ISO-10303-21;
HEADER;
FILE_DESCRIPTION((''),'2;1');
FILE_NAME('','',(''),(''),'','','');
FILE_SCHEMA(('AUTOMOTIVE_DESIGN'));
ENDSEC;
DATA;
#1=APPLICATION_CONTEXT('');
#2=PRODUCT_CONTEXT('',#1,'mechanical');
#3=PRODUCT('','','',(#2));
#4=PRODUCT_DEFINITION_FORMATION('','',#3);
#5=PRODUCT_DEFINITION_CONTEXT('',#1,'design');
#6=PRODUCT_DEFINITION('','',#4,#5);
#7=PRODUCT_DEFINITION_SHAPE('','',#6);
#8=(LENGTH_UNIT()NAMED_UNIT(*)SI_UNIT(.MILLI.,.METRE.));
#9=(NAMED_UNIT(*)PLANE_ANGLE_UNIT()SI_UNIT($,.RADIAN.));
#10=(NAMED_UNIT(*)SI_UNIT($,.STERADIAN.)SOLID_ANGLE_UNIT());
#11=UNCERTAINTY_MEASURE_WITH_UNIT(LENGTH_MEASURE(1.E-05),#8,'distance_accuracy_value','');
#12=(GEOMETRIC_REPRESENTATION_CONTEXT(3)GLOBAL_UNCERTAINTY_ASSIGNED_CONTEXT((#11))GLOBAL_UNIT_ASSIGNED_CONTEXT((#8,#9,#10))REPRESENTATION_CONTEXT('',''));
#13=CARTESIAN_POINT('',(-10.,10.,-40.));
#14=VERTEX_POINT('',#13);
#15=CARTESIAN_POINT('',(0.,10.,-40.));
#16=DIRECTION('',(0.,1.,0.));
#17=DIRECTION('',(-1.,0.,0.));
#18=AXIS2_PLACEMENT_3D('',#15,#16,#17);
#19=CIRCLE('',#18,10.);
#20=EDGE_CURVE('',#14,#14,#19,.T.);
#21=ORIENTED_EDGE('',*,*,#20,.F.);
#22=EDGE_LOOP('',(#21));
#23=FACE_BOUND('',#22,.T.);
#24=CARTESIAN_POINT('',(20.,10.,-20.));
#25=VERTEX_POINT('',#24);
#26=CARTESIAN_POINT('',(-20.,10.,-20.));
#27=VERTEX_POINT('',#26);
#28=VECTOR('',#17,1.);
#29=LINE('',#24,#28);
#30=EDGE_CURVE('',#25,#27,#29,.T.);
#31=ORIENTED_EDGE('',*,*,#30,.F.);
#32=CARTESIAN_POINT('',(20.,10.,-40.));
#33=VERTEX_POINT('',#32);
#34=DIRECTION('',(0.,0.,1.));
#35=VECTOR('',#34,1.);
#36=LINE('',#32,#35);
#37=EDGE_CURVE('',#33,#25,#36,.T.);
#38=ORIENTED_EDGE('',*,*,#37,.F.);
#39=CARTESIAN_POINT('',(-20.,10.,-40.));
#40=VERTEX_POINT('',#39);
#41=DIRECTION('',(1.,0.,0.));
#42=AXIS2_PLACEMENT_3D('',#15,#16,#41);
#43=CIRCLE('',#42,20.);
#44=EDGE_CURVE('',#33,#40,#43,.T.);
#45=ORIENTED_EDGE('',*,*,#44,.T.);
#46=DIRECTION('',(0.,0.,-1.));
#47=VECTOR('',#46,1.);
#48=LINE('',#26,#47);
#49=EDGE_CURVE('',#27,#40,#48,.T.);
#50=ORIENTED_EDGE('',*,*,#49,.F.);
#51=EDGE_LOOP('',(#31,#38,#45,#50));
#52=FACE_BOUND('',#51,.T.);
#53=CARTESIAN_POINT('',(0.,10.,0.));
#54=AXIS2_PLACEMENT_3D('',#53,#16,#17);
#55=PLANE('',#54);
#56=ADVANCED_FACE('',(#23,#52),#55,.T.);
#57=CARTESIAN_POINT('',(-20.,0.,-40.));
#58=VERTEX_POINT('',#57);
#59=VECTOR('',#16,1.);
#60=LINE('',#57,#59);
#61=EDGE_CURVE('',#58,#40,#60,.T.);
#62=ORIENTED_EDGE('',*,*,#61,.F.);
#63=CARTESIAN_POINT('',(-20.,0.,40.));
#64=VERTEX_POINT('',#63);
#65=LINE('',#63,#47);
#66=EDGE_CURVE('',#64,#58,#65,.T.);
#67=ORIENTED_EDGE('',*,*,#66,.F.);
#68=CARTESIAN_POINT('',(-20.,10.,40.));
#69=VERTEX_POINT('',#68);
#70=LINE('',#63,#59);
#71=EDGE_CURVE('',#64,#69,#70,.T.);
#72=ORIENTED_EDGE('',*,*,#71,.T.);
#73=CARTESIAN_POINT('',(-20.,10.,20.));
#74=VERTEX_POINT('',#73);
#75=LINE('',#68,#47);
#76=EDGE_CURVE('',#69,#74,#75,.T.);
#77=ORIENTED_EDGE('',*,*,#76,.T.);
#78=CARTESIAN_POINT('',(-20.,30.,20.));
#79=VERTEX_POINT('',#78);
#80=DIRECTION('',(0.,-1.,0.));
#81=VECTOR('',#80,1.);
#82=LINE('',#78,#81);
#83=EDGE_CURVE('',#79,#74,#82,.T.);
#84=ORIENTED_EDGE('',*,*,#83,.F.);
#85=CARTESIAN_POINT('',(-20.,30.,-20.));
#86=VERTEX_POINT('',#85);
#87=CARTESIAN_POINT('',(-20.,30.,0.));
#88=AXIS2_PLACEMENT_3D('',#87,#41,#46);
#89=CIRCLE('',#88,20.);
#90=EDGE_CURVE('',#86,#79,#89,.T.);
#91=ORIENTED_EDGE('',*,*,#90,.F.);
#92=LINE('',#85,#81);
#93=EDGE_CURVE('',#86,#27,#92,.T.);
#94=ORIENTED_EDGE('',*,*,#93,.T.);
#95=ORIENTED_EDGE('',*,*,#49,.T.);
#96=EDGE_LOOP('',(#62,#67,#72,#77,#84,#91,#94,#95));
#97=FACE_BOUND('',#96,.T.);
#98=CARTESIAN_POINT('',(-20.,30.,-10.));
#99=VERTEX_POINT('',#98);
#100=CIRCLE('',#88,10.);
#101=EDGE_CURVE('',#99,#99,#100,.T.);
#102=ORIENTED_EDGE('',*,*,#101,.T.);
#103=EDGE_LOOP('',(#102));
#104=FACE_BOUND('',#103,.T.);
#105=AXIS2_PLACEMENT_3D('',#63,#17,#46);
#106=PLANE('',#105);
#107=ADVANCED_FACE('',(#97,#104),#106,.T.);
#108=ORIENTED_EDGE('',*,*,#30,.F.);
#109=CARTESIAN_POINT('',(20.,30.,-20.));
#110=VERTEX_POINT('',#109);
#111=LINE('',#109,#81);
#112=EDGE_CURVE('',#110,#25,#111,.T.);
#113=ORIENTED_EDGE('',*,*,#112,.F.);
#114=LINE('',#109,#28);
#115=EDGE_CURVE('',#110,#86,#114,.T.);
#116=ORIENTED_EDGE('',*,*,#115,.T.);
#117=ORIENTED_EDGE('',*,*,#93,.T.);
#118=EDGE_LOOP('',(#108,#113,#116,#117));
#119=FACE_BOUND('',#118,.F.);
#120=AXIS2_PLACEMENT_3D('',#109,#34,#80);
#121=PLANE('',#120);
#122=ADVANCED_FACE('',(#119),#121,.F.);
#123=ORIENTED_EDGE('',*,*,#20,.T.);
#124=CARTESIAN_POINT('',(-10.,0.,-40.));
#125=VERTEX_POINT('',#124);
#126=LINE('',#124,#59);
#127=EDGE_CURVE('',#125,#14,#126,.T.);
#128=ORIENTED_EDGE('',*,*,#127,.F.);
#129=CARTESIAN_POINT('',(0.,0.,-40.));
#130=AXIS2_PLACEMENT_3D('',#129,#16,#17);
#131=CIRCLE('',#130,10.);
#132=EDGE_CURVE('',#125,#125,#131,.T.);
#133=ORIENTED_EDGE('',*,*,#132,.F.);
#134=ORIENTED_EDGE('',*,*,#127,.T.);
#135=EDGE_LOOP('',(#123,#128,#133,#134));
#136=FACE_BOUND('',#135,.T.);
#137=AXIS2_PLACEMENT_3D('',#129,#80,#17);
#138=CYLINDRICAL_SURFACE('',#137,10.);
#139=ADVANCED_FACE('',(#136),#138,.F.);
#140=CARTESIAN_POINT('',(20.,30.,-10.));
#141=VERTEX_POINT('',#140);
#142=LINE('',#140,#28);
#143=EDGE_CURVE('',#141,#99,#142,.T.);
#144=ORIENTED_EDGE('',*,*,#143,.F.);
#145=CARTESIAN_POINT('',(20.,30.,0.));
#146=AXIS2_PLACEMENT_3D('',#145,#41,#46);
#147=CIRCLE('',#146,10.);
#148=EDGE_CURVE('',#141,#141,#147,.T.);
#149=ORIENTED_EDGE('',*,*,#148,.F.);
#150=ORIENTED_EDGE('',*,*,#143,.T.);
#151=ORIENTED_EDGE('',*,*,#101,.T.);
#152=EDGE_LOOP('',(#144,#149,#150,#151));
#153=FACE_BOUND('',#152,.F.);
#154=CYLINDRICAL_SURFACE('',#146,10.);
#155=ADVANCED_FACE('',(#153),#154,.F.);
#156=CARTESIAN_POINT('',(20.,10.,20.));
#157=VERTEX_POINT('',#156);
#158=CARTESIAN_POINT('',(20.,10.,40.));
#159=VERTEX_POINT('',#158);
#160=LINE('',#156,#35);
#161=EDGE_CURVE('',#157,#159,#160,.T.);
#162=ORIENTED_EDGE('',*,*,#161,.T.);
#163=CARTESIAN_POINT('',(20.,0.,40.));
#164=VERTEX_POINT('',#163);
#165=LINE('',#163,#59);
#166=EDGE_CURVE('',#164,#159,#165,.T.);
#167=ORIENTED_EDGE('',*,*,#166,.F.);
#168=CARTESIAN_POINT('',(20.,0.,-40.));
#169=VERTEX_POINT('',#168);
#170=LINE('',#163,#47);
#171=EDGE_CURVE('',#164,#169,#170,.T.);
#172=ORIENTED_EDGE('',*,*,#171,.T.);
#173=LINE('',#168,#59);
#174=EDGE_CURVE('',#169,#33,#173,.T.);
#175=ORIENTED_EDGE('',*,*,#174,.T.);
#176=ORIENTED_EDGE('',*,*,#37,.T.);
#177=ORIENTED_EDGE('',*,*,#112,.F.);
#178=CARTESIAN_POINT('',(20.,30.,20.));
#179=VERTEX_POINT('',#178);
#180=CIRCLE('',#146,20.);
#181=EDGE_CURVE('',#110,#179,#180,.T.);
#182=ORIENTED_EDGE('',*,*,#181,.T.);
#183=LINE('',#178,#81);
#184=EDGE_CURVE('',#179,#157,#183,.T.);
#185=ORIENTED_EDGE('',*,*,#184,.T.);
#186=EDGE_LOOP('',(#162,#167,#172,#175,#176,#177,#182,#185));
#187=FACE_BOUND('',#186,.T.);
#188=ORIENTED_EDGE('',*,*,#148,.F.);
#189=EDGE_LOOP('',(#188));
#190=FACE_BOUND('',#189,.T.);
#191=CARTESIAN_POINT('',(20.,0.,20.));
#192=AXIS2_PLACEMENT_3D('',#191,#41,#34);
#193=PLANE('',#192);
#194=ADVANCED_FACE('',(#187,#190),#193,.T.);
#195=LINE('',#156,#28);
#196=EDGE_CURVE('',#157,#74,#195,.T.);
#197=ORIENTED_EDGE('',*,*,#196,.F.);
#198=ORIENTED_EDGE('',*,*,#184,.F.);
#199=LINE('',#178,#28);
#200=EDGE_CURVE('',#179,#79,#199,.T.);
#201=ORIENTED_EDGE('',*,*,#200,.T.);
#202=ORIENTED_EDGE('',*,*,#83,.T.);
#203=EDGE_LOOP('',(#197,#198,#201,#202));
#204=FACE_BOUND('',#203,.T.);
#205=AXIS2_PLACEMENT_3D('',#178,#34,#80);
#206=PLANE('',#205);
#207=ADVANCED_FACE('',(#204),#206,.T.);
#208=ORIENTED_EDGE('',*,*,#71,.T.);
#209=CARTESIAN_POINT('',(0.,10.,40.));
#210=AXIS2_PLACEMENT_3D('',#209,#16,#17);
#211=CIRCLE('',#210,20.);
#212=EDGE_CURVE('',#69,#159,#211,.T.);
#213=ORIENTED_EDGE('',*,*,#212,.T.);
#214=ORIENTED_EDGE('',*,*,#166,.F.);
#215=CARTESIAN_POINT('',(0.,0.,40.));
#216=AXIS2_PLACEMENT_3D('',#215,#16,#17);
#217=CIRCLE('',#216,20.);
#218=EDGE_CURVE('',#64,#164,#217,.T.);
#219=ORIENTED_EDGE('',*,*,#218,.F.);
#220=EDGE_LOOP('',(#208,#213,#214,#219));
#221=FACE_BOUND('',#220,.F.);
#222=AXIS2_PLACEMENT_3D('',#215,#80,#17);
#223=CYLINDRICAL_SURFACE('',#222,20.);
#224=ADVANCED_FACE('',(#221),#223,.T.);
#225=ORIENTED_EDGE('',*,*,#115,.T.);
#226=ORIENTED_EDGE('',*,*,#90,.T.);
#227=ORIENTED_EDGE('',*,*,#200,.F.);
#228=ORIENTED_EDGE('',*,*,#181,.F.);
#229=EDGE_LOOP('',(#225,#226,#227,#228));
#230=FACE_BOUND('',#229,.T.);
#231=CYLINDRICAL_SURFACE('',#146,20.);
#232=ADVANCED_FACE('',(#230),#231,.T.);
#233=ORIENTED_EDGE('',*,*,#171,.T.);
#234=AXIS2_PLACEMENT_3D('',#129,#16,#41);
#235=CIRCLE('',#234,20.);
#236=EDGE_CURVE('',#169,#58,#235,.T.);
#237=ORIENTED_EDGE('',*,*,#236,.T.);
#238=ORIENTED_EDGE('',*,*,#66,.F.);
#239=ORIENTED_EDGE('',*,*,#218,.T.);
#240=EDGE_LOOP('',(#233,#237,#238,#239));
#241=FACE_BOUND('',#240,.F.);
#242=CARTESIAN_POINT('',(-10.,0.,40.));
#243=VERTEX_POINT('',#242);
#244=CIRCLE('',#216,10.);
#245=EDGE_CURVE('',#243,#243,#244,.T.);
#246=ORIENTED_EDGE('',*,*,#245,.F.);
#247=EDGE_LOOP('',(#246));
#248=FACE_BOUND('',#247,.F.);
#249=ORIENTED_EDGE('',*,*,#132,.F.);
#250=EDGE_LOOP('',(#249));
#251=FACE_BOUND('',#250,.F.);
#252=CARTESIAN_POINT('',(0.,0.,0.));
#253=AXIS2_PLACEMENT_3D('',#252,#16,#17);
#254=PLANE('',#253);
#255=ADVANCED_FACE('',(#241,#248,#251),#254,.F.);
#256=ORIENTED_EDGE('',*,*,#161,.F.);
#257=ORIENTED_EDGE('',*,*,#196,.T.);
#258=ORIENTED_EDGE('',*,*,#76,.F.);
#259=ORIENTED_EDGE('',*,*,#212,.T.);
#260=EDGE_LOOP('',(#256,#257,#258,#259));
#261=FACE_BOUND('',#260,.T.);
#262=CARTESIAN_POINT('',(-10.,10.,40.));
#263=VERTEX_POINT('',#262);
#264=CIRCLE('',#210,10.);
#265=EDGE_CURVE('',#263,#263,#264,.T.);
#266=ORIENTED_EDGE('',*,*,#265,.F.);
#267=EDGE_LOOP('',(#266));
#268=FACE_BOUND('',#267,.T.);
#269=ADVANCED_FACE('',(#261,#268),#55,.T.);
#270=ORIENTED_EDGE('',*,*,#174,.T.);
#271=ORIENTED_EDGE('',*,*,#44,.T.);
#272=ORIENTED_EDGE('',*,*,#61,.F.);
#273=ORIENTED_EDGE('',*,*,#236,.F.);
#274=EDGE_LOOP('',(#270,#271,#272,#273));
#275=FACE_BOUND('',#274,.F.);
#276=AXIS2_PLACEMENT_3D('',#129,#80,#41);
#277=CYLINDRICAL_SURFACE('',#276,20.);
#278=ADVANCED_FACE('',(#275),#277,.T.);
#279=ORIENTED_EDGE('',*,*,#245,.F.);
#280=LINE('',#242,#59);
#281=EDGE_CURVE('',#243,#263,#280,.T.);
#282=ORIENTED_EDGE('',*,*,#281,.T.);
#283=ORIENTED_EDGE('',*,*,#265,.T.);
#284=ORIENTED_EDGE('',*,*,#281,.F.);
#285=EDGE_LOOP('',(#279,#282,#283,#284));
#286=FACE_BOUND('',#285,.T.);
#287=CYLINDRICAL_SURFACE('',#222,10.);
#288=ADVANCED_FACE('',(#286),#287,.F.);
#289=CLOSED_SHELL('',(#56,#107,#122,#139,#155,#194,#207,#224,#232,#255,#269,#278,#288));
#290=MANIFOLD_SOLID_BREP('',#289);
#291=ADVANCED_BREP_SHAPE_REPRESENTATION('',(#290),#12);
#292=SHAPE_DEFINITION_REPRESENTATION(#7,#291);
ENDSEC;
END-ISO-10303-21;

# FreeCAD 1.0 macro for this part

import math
import FreeCAD as App
import Part
import Sketcher
from FreeCAD import Vector
Q = App.Units.Quantity

doc = App.newDocument("Part")
params = doc.addObject("Spreadsheet::Sheet", "Params")
for row, (alias, value) in enumerate([
    ("sketch1_diameter", "20 mm"),
    ("sketch1_radius", "20 mm"),
    ("sketch1_height", "80 mm"),
    ("pad1_length", "10 mm"),
    ("sketch2_diameter", "20 mm"),
    ("sketch2_radius", "20 mm"),
    ("sketch2_width", "20 mm"),
    ("pad2_length", "40 mm"),
], start=1):
    params.set(f"A{row}", alias)
    params.set(f"B{row}", "=" + value)
    params.setAlias(f"B{row}", alias)

body = doc.addObject("PartDesign::Body", "Body")

sketch1 = body.newObject("Sketcher::SketchObject", "Sketch")
sketch1.AttachmentSupport = (doc.getObject("XZ_Plane"), [""])
sketch1.MapMode = "FlatFace"
sketch1.addGeometry(Part.LineSegment(Vector(20, 40, 0), Vector(20, -40, 0)), False)
sketch1.addGeometry(Part.ArcOfCircle(Part.Circle(Vector(0, -40, 0), Vector(0, 0, 1), 20), math.radians(180), math.radians(360)), False)
sketch1.addGeometry(Part.LineSegment(Vector(-20, -40, 0), Vector(-20, 40, 0)), False)
sketch1.addGeometry(Part.ArcOfCircle(Part.Circle(Vector(0, 40, 0), Vector(0, 0, 1), 20), math.radians(0), math.radians(180)), False)
sketch1.addGeometry(Part.Circle(Vector(0, -40, 0), Vector(0, 0, 1), 10), False)
sketch1.addGeometry(Part.Circle(Vector(0, 40, 0), Vector(0, 0, 1), 10), False)
sketch1.addConstraint(Sketcher.Constraint("Tangent", 0, 2, 1, 2))
sketch1.addConstraint(Sketcher.Constraint("Tangent", 1, 1, 2, 1))
sketch1.addConstraint(Sketcher.Constraint("Tangent", 2, 2, 3, 2))
sketch1.addConstraint(Sketcher.Constraint("Tangent", 3, 1, 0, 1))
sketch1.addConstraint(Sketcher.Constraint("Vertical", 0))
sketch1.addConstraint(Sketcher.Constraint("Vertical", 2))
sketch1.addConstraint(Sketcher.Constraint("Coincident", 4, 3, 1, 3))
sketch1.addConstraint(Sketcher.Constraint("Coincident", 5, 3, 3, 3))
sketch1.addConstraint(Sketcher.Constraint("Equal", 4, 5))
sketch1.addConstraint(Sketcher.Constraint("Symmetric", 1, 3, 3, 3, -1, 1))
sketch1.addConstraint(Sketcher.Constraint("Diameter", 4, Q("20 mm")))
sketch1.addConstraint(Sketcher.Constraint("Radius", 1, Q("20 mm")))
sketch1.addConstraint(Sketcher.Constraint("DistanceY", 0, 2, 0, 1, Q("80 mm")))
sketch1.setExpression("Constraints[10]", "Params.sketch1_diameter")
sketch1.setExpression("Constraints[11]", "Params.sketch1_radius")
sketch1.setExpression("Constraints[12]", "Params.sketch1_height")
pad1 = body.newObject("PartDesign::Pad", "Pad")
pad1.Profile = sketch1
pad1.setExpression("Length", "Params.pad1_length")
pad1.Reversed = True

sketch2 = body.newObject("Sketcher::SketchObject", "Sketch001")
sketch2.AttachmentSupport = (doc.getObject("YZ_Plane"), [""])
sketch2.MapMode = "FlatFace"
sketch2.AttachmentOffset = App.Placement(Vector(0, 0, 20), App.Rotation())
sketch2.addGeometry(Part.LineSegment(Vector(10, -20, 0), Vector(30, -20, 0)), False)
sketch2.addGeometry(Part.ArcOfCircle(Part.Circle(Vector(30, 0, 0), Vector(0, 0, 1), 20), math.radians(-90), math.radians(90)), False)
sketch2.addGeometry(Part.LineSegment(Vector(30, 20, 0), Vector(10, 20, 0)), False)
sketch2.addGeometry(Part.LineSegment(Vector(10, 20, 0), Vector(10, -20, 0)), False)
sketch2.addGeometry(Part.Circle(Vector(30, 0, 0), Vector(0, 0, 1), 10), False)
sketch2.addConstraint(Sketcher.Constraint("Tangent", 0, 2, 1, 1))
sketch2.addConstraint(Sketcher.Constraint("Tangent", 1, 2, 2, 1))
sketch2.addConstraint(Sketcher.Constraint("Coincident", 2, 2, 3, 1))
sketch2.addConstraint(Sketcher.Constraint("Coincident", 3, 2, 0, 1))
sketch2.addConstraint(Sketcher.Constraint("Horizontal", 0))
sketch2.addConstraint(Sketcher.Constraint("Horizontal", 2))
sketch2.addConstraint(Sketcher.Constraint("Vertical", 3))
sketch2.addConstraint(Sketcher.Constraint("Coincident", 4, 3, 1, 3))
sketch2.addConstraint(Sketcher.Constraint("PointOnObject", 1, 3, -1))
sketch2.addConstraint(Sketcher.Constraint("Diameter", 4, Q("20 mm")))
sketch2.addConstraint(Sketcher.Constraint("Radius", 1, Q("20 mm")))
sketch2.addConstraint(Sketcher.Constraint("DistanceX", 0, 1, 0, 2, Q("20 mm")))
sketch2.addConstraint(Sketcher.Constraint("DistanceX", -1, 1, 1, 3, Q("30 mm")))
sketch2.setExpression("Constraints[9]", "Params.sketch2_diameter")
sketch2.setExpression("Constraints[10]", "Params.sketch2_radius")
sketch2.setExpression("Constraints[11]", "Params.sketch2_width")
pad2 = body.newObject("PartDesign::Pad", "Pad001")
pad2.Profile = sketch2
pad2.setExpression("Length", "Params.pad2_length")
pad2.Reversed = True

doc.recompute()
